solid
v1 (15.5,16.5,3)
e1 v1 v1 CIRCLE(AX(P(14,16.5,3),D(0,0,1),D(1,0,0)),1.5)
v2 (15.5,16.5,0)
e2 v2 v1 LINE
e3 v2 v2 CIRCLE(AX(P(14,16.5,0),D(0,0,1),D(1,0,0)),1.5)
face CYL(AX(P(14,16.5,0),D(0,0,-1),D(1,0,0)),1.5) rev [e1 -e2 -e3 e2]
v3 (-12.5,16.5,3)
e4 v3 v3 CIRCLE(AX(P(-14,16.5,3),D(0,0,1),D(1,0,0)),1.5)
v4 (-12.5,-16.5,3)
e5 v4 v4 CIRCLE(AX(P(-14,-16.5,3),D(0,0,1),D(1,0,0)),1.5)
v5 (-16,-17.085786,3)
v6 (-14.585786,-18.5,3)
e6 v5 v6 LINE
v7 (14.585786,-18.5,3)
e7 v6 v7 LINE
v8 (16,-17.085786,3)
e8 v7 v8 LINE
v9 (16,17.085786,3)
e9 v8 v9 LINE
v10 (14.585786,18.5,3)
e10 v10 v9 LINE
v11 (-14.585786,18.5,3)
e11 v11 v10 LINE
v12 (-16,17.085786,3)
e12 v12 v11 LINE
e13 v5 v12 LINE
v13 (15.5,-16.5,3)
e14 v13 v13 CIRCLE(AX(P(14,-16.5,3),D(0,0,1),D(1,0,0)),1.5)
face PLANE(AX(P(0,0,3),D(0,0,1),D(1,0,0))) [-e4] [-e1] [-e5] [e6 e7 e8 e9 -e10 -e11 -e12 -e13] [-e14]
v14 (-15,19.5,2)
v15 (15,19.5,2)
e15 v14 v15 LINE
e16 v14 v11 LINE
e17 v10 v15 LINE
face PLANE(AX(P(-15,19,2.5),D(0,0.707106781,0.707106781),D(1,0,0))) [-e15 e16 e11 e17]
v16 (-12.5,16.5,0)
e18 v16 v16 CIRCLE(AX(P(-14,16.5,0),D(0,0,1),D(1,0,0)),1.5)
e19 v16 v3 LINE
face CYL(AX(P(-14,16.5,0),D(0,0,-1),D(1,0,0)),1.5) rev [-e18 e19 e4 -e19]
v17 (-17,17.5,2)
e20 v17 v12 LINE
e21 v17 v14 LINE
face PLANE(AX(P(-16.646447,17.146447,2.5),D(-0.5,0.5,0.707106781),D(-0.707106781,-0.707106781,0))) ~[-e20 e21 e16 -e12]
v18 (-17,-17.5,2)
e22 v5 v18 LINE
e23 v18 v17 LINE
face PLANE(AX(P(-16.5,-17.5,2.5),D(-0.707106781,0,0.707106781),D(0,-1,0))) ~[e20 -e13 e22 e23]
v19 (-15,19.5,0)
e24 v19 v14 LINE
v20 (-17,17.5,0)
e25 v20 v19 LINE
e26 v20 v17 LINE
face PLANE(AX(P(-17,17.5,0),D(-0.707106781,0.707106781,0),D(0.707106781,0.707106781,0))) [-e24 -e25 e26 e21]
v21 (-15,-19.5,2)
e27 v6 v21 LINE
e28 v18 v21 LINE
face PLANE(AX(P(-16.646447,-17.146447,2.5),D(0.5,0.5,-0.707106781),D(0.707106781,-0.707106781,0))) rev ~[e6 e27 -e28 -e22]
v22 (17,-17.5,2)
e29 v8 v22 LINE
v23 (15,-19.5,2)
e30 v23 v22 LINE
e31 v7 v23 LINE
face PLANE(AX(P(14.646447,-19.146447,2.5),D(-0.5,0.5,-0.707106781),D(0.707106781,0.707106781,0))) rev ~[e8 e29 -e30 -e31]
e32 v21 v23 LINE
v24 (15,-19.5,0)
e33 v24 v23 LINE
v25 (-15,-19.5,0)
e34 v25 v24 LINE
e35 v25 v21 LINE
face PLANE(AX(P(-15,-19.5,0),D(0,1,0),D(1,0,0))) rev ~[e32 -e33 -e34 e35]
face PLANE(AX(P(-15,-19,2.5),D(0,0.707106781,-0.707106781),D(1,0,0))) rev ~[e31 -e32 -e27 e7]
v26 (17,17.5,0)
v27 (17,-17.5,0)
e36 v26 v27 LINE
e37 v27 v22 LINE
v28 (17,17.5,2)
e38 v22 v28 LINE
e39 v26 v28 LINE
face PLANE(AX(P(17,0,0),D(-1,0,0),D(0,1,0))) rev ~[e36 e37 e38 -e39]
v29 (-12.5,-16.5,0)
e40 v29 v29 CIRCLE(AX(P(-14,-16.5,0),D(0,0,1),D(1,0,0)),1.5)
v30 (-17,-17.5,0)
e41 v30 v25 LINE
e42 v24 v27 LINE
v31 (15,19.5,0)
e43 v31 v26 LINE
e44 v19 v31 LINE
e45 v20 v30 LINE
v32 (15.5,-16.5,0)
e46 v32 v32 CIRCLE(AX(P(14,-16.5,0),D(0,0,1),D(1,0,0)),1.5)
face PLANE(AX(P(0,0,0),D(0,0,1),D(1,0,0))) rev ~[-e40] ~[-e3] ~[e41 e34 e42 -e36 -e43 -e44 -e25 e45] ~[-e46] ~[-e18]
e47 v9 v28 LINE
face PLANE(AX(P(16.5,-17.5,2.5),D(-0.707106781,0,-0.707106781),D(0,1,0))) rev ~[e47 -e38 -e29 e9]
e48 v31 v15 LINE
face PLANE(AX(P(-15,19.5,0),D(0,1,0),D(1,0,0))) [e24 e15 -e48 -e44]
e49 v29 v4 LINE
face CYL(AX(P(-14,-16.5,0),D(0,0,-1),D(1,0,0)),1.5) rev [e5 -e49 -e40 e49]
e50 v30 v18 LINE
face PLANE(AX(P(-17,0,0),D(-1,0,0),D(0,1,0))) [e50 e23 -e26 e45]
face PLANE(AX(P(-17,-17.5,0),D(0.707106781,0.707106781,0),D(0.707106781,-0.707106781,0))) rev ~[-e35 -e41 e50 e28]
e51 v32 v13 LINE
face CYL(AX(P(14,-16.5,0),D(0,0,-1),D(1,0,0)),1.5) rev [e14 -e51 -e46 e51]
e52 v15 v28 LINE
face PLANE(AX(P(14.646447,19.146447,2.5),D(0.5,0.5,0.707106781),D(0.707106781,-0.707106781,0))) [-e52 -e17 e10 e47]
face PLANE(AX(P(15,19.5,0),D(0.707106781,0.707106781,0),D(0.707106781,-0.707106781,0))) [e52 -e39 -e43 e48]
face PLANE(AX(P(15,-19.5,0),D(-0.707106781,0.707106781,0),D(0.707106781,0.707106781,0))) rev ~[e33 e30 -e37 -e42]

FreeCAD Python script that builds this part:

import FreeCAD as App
import Part
import Sketcher
Q = App.Units.Quantity


def edges_at(feature, points):
    """Names of the edges that pass closest to the given points."""
    edges = feature.Shape.Edges
    near = lambda p: min(range(len(edges)), key=lambda i: edges[i].distToShape(Part.Vertex(*p))[0])
    return sorted({f"Edge{near(p) + 1}" for p in points})

doc = App.newDocument("Part")
body = doc.addObject("PartDesign::Body", "Body")

# Sketch on XY plane
sketch1 = doc.addObject("Sketcher::SketchObject", "Sketch")
body.addObject(sketch1)
sketch1.AttachmentSupport = (doc.XY_Plane, [""])
sketch1.MapMode = "FlatFace"
sketch1.addGeometry([
    Part.LineSegment(App.Vector(-17, 17.5, 0), App.Vector(-17, -17.5, 0)),  # 0
    Part.LineSegment(App.Vector(-17, -17.5, 0), App.Vector(-15, -19.5, 0)),  # 1
    Part.LineSegment(App.Vector(-15, -19.5, 0), App.Vector(15, -19.5, 0)),  # 2
    Part.LineSegment(App.Vector(15, -19.5, 0), App.Vector(17, -17.5, 0)),  # 3
    Part.LineSegment(App.Vector(17, -17.5, 0), App.Vector(17, 17.5, 0)),  # 4
    Part.LineSegment(App.Vector(17, 17.5, 0), App.Vector(15, 19.5, 0)),  # 5
    Part.LineSegment(App.Vector(15, 19.5, 0), App.Vector(-15, 19.5, 0)),  # 6
    Part.LineSegment(App.Vector(-15, 19.5, 0), App.Vector(-17, 17.5, 0)),  # 7
    Part.Circle(App.Vector(-14, 16.5, 0), App.Vector(0, 0, 1), 1.5),  # 8
    Part.Circle(App.Vector(14, 16.5, 0), App.Vector(0, 0, 1), 1.5),  # 9
    Part.Circle(App.Vector(-14, -16.5, 0), App.Vector(0, 0, 1), 1.5),  # 10
    Part.Circle(App.Vector(14, -16.5, 0), App.Vector(0, 0, 1), 1.5),  # 11
], False)
sketch1.addConstraint([
    Sketcher.Constraint("Coincident", 0, 2, 1, 1),
    Sketcher.Constraint("Coincident", 1, 2, 2, 1),
    Sketcher.Constraint("Coincident", 2, 2, 3, 1),
    Sketcher.Constraint("Coincident", 3, 2, 4, 1),
    Sketcher.Constraint("Coincident", 4, 2, 5, 1),
    Sketcher.Constraint("Coincident", 5, 2, 6, 1),
    Sketcher.Constraint("Coincident", 6, 2, 7, 1),
    Sketcher.Constraint("Coincident", 7, 2, 0, 1),
    Sketcher.Constraint("Vertical", 0),
    Sketcher.Constraint("Horizontal", 2),
    Sketcher.Constraint("Vertical", 4),
    Sketcher.Constraint("Horizontal", 6),
    Sketcher.Constraint("Equal", 8, 9),
    Sketcher.Constraint("Equal", 9, 10),
    Sketcher.Constraint("Equal", 10, 11),
    Sketcher.Constraint("Symmetric", 9, 3, 10, 3, -1, 1),
    Sketcher.Constraint("Symmetric", 8, 3, 11, 3, -1, 1),
    Sketcher.Constraint("Symmetric", 0, 2, 4, 2, -1, 1),
    Sketcher.Constraint("Symmetric", 1, 2, 5, 2, -1, 1),
    Sketcher.Constraint("Symmetric", 8, 3, 9, 3, -2),
    Sketcher.Constraint("Perpendicular", 1, 3),
    Sketcher.Constraint("Perpendicular", 5, 7),
    Sketcher.Constraint("Horizontal", 0, 2, 3, 2),
    Sketcher.Constraint("Horizontal", 4, 2, 7, 2),
    Sketcher.Constraint("Vertical", 2, 2, 5, 2),
    Sketcher.Constraint("Diameter", 8, Q("3 mm")),
    Sketcher.Constraint("DistanceX", 2, 1, 2, 2, Q("30 mm")),
    Sketcher.Constraint("DistanceY", 0, 2, 0, 1, Q("35 mm")),
    Sketcher.Constraint("DistanceX", 8, 3, -1, 1, Q("14 mm")),
    Sketcher.Constraint("DistanceX", 0, 2, -1, 1, Q("17 mm")),
    Sketcher.Constraint("DistanceY", 10, 3, 8, 3, Q("33 mm")),
])
pad1 = doc.addObject("PartDesign::Pad", "Pad")
body.addObject(pad1)
pad1.Profile = sketch1
pad1.Length = 3
doc.recompute()

chamfer = doc.addObject("PartDesign::Chamfer", "Chamfer")
body.addObject(chamfer)
chamfer.Base = (pad1, edges_at(pad1, [
    (-16, -18.5, 3),
    (-16, 18.5, 3),
    (16, 18.5, 3),
    (16, -18.5, 3),
    (0, -19.5, 3),
    (0, 19.5, 3),
    (-17, 8.75, 3),
    (17, 8.75, 3),
]))
chamfer.Size = 1

doc.recompute()
